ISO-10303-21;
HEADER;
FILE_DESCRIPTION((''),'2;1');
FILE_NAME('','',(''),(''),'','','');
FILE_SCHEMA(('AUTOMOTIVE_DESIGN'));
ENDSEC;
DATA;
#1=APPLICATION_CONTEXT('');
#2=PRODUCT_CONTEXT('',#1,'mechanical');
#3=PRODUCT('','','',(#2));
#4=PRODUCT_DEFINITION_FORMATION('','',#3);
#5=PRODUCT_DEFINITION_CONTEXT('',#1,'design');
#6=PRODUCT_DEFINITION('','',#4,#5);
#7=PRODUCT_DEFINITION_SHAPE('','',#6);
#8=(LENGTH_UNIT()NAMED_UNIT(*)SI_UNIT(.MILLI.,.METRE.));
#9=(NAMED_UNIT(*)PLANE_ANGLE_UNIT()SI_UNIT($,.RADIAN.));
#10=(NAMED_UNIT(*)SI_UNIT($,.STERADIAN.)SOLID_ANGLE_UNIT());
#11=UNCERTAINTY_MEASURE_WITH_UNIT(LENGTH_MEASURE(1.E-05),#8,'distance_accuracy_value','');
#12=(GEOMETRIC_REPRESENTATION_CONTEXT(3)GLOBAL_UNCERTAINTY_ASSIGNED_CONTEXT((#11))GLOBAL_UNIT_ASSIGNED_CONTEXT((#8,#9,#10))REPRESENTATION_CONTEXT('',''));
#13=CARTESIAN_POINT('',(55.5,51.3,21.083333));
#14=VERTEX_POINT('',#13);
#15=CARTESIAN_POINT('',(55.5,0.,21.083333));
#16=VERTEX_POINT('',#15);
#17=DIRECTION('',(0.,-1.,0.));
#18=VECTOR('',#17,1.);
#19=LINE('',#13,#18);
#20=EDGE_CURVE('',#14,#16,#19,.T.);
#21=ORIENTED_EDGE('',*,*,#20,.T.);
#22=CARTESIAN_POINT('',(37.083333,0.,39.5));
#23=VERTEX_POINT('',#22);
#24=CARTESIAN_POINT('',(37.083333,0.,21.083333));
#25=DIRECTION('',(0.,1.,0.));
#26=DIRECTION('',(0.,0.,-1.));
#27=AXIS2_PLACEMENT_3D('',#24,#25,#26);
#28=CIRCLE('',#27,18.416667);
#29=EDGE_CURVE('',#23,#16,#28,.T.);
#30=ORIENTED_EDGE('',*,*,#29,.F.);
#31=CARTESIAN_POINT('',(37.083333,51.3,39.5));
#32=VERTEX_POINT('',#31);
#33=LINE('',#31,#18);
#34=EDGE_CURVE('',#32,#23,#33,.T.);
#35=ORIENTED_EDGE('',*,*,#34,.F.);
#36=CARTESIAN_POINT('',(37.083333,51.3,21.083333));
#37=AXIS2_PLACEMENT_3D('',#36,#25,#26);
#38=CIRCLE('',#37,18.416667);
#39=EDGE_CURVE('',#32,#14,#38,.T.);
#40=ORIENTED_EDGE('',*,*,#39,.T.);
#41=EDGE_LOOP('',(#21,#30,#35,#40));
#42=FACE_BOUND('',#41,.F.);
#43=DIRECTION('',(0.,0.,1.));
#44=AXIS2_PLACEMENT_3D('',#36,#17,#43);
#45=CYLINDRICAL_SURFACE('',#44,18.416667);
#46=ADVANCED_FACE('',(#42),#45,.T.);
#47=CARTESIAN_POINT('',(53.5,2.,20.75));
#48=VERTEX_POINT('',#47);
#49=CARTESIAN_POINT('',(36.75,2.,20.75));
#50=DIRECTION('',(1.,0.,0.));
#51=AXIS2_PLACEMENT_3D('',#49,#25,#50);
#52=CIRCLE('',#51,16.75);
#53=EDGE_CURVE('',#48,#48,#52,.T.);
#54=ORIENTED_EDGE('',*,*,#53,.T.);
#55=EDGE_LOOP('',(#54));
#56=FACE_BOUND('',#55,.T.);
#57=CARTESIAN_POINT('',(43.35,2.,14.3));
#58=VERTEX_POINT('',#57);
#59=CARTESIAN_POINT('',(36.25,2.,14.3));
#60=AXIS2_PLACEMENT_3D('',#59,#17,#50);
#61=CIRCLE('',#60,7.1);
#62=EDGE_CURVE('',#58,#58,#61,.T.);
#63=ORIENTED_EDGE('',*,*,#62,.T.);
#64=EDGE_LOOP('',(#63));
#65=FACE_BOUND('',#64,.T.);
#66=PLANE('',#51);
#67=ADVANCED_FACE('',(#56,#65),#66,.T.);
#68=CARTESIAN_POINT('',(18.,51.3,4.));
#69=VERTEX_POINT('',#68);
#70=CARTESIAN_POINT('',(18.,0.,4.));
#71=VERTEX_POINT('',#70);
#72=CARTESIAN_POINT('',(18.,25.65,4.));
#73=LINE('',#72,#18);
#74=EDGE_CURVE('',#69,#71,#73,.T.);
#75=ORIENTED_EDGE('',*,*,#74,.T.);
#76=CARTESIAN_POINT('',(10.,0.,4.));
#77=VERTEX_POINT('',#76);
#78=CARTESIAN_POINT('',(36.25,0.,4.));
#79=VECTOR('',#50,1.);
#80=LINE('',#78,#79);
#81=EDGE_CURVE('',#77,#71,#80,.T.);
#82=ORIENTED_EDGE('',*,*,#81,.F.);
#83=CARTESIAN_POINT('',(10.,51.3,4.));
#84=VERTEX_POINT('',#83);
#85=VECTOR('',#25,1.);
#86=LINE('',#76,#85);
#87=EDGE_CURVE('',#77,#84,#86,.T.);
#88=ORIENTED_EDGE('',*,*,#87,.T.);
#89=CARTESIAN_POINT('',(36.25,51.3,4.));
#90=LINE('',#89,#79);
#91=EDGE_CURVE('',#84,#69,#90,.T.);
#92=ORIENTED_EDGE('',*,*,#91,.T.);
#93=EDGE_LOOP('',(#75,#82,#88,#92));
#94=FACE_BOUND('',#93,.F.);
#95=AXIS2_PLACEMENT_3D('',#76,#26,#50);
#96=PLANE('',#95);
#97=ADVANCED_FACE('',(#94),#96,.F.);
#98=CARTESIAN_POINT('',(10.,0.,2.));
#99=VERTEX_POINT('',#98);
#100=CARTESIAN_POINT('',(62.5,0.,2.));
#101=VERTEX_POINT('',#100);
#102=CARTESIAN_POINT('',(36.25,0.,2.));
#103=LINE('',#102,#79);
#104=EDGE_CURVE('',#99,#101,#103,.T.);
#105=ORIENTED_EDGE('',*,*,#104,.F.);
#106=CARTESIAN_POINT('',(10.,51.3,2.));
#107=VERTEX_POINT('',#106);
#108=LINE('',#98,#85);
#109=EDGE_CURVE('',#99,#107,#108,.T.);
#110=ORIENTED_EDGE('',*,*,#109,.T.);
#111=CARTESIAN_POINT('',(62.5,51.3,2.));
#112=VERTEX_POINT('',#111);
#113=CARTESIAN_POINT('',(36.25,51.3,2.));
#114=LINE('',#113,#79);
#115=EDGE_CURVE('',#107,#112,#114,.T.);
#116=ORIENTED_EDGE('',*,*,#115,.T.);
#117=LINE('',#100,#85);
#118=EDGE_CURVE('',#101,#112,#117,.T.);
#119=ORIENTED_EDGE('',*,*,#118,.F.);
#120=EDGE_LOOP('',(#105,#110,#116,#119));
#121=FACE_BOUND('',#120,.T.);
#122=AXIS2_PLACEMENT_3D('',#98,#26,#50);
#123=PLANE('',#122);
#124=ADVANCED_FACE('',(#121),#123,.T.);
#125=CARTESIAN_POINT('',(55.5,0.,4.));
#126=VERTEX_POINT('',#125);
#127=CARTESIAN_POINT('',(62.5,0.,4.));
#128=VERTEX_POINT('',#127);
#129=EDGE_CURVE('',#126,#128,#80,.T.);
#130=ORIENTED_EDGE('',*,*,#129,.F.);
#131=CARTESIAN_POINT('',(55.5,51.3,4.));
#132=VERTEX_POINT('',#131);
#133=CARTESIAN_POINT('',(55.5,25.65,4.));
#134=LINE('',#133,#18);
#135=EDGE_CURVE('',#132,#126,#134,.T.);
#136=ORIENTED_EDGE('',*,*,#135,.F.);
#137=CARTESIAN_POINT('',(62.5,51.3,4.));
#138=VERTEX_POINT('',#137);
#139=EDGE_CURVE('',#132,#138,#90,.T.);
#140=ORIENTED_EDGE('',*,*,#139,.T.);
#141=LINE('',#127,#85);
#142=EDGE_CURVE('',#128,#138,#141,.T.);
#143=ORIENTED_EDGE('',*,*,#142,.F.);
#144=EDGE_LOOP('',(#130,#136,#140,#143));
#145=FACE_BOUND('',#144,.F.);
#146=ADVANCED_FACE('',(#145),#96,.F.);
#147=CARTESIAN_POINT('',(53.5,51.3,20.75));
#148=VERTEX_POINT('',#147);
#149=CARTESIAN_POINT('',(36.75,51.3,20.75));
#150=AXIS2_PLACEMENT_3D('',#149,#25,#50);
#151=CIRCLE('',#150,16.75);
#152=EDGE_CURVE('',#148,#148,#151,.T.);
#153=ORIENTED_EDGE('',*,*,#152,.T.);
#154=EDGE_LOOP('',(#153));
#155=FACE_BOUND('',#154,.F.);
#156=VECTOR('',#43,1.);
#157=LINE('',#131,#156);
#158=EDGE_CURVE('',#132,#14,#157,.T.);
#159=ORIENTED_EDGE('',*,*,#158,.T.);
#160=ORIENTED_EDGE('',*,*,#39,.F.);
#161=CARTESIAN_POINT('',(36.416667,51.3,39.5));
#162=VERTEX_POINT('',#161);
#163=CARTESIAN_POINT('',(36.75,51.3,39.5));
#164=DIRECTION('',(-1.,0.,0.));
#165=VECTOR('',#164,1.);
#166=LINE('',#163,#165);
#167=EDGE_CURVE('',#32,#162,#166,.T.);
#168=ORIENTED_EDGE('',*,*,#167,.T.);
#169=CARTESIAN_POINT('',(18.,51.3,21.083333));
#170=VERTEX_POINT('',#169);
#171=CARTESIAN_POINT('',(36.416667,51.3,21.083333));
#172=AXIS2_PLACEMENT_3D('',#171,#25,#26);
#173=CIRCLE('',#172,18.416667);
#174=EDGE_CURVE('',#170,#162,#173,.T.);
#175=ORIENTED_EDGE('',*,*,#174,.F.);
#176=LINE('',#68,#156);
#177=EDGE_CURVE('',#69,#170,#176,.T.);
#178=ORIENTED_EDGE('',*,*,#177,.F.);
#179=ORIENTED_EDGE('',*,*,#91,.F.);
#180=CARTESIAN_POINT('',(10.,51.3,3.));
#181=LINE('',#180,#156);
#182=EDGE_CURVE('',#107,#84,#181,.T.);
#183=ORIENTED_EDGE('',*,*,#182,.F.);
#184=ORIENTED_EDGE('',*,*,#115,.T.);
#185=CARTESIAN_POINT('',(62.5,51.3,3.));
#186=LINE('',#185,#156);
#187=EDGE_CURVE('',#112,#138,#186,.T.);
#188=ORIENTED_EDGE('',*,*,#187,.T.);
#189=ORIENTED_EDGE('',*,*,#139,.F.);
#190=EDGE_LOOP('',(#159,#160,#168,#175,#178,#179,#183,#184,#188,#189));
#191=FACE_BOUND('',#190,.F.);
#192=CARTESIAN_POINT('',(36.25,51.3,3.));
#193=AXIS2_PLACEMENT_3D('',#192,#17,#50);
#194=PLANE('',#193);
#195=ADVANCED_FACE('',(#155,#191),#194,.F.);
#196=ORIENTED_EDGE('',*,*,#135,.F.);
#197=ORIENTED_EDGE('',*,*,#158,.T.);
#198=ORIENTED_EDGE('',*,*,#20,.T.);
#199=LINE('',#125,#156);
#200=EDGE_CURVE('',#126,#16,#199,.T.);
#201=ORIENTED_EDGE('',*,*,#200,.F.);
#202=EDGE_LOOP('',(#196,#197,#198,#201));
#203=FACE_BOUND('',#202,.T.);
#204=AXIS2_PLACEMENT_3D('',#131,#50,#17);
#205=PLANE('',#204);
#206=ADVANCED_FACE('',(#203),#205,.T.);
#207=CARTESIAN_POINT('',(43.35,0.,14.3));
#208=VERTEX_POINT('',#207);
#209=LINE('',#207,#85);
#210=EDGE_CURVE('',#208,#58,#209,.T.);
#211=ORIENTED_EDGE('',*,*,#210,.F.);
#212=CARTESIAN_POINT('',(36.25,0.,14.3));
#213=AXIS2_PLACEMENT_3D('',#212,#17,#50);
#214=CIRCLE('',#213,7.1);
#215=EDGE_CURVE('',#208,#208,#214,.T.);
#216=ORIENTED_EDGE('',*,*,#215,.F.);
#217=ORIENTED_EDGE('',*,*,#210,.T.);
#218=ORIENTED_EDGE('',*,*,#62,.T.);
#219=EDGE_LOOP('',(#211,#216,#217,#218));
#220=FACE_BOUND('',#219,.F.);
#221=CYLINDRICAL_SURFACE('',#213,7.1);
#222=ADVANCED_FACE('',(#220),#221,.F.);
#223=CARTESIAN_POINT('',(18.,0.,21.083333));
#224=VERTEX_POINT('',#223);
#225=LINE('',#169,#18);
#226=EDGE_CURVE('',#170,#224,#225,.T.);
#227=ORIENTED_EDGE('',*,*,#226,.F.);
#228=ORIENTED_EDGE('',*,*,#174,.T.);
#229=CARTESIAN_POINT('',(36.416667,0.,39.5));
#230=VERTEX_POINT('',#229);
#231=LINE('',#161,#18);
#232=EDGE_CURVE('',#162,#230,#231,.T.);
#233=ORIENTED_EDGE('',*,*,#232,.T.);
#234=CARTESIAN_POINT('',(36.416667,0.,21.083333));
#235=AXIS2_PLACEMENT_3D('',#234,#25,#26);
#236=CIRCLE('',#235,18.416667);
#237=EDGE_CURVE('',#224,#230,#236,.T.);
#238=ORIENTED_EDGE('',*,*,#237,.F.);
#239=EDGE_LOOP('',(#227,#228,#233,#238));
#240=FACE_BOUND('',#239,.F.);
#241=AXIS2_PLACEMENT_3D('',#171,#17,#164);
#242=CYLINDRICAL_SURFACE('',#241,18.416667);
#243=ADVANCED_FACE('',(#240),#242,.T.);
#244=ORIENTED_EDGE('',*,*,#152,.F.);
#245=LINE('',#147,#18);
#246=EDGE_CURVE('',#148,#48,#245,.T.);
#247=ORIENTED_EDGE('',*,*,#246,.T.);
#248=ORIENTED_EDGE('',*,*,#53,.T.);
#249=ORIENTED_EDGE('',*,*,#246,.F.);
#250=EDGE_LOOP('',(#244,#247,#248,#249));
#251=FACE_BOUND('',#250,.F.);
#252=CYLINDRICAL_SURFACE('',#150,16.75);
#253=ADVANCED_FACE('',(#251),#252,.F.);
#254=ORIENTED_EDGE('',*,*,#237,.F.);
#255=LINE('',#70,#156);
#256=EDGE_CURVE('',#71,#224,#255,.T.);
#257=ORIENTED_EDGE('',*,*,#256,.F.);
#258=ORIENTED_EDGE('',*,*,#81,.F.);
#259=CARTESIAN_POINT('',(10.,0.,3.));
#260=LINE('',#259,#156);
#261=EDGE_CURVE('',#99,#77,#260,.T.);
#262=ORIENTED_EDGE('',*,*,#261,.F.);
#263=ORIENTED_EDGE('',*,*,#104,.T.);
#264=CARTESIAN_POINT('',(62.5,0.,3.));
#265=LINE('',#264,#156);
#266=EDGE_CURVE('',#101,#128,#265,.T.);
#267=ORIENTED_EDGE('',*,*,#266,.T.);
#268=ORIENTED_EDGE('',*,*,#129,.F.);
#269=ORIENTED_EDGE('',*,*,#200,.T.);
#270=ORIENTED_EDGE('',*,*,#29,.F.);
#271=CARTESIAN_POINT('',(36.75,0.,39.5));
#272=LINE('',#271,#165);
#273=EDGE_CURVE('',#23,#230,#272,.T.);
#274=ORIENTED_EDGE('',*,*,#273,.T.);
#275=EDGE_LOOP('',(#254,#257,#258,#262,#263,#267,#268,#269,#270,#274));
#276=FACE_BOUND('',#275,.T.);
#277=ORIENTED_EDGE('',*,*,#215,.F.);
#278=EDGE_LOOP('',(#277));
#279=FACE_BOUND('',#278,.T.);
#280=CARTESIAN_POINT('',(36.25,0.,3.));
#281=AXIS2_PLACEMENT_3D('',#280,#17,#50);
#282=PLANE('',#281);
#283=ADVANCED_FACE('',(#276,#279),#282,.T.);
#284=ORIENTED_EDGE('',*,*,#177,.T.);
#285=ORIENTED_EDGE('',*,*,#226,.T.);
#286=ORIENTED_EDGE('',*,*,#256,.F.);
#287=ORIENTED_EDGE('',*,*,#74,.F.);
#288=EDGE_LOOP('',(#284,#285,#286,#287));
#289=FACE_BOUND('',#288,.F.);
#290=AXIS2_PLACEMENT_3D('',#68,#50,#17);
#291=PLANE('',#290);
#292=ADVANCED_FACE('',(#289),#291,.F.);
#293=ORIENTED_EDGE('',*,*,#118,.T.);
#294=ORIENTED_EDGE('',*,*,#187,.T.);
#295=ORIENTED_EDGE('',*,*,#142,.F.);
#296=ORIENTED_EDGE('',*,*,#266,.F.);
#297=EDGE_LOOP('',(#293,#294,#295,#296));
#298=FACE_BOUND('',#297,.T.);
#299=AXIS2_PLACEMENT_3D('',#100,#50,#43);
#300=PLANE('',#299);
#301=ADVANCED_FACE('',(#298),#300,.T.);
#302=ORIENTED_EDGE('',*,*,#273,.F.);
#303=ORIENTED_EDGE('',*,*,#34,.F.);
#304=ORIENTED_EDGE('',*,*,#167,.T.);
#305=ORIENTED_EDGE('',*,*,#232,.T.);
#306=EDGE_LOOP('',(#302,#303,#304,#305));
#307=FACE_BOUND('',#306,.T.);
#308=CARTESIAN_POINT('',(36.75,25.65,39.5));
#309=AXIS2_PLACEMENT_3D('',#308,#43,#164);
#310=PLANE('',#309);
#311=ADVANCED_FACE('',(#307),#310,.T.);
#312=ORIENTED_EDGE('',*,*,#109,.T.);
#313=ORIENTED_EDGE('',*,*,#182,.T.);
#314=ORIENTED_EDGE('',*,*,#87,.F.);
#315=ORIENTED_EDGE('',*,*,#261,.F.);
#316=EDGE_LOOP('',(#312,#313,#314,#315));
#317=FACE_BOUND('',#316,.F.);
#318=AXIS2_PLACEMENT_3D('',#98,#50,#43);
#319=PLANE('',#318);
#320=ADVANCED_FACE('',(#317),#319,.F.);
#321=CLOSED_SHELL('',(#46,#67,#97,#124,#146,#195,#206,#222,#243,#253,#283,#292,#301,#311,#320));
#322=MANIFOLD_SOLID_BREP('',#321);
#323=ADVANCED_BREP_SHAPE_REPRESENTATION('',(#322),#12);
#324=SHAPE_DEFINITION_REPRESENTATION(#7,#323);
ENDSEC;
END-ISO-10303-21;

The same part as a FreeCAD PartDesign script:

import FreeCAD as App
import Part
import Sketcher
Q = App.Units.Quantity


def edges_at(feature, points):
    """Names of the edges that pass closest to the given points."""
    edges = feature.Shape.Edges
    near = lambda p: min(range(len(edges)), key=lambda i: edges[i].distToShape(Part.Vertex(*p))[0])
    return sorted({f"Edge{near(p) + 1}" for p in points})


def add_polygon(sketch, points):
    """Adds a closed chain of lines whose ends are joined by coincident constraints."""
    first, n = sketch.GeometryCount, len(points)
    for a, b in zip(points, points[1:] + points[:1]):
        sketch.addGeometry(Part.LineSegment(App.Vector(*a, 0), App.Vector(*b, 0)), False)
    for i in range(n):
        sketch.addConstraint(Sketcher.Constraint("Coincident", first + i, 2, first + (i + 1) % n, 1))

doc = App.newDocument("Part")
params = doc.addObject("Spreadsheet::Sheet", "Params")
for row, (alias, value) in enumerate([
    ("sketch1_height", "2 mm"),
    ("sketch1_width", "52.5 mm"),
    ("pad1_length", "51.3 mm"),
    ("sketch2_width", "37.5 mm"),
    ("sketch2_height", "51.3 mm"),
    ("pad2_length", "35.5 mm"),
    ("fillet_radius", "18.416667 mm"),
    ("sketch3_diameter", "14.2 mm"),
    ("pocket1_length", "2 mm"),
    ("sketch4_diameter", "33.5 mm"),
    ("pocket2_length", "49.3 mm"),
], start=1):
    params.set(f"A{row}", alias)
    params.set(f"B{row}", "=" + value)
    params.setAlias(f"B{row}", alias)

body = doc.addObject("PartDesign::Body", "Body")

# Sketch on XZ plane
sketch1 = body.newObject("Sketcher::SketchObject", "Sketch")
sketch1.AttachmentSupport = (doc.getObject("XZ_Plane"), [""])
sketch1.MapMode = "FlatFace"
add_polygon(sketch1, [(10, 4), (10, 2), (62.5, 2), (62.5, 4)])  # lines 0-3
sketch1.addConstraint([
    Sketcher.Constraint("Vertical", 0),
    Sketcher.Constraint("Horizontal", 1),
    Sketcher.Constraint("Vertical", 2),
    Sketcher.Constraint("Horizontal", 3),
    Sketcher.Constraint("DistanceY", 0, 2, 0, 1, Q("2 mm")),
    Sketcher.Constraint("DistanceX", 1, 1, 1, 2, Q("52.5 mm")),
    Sketcher.Constraint("DistanceX", -1, 1, 0, 2, Q("10 mm")),
    Sketcher.Constraint("DistanceY", -1, 1, 0, 2, Q("2 mm")),
])
sketch1.setExpression("Constraints[8]", "Params.sketch1_height")
sketch1.setExpression("Constraints[9]", "Params.sketch1_width")
pad1 = body.newObject("PartDesign::Pad", "Pad")
pad1.Profile = sketch1
pad1.setExpression("Length", "Params.pad1_length")
pad1.Reversed = True

# Sketch on XY plane
sketch2 = body.newObject("Sketcher::SketchObject", "Sketch001")
sketch2.AttachmentSupport = (doc.getObject("XY_Plane"), [""])
sketch2.MapMode = "FlatFace"
sketch2.AttachmentOffset = App.Placement(App.Vector(0, 0, 4), App.Rotation())
add_polygon(sketch2, [(55.5, 0), (55.5, 51.3), (18, 51.3), (18, 0)])  # lines 0-3
sketch2.addConstraint([
    Sketcher.Constraint("Vertical", 0),
    Sketcher.Constraint("Horizontal", 1),
    Sketcher.Constraint("Vertical", 2),
    Sketcher.Constraint("Horizontal", 3),
    Sketcher.Constraint("PointOnObject", 2, 2, -1),
    Sketcher.Constraint("DistanceX", 1, 2, 1, 1, Q("37.5 mm")),
    Sketcher.Constraint("DistanceY", 0, 1, 0, 2, Q("51.3 mm")),
    Sketcher.Constraint("DistanceX", -1, 1, 1, 2, Q("18 mm")),
])
sketch2.setExpression("Constraints[9]", "Params.sketch2_width")
sketch2.setExpression("Constraints[10]", "Params.sketch2_height")
pad2 = body.newObject("PartDesign::Pad", "Pad001")
pad2.Profile = sketch2
pad2.setExpression("Length", "Params.pad2_length")
doc.recompute()

fillet = body.newObject("PartDesign::Fillet", "Fillet")
fillet.Base = (pad2, edges_at(pad2, [(18, 25.65, 39.5), (55.5, 25.65, 39.5)]))
fillet.setExpression("Radius", "Params.fillet_radius")

# Sketch on XZ plane
sketch3 = body.newObject("Sketcher::SketchObject", "Sketch002")
sketch3.AttachmentSupport = (doc.getObject("XZ_Plane"), [""])
sketch3.MapMode = "FlatFace"
sketch3.addGeometry(Part.Circle(App.Vector(36.25, 14.3, 0), App.Vector(0, 0, 1), 7.1), False)
sketch3.addConstraint([
    Sketcher.Constraint("Diameter", 0, Q("14.2 mm")),
    Sketcher.Constraint("DistanceY", -1, 1, 0, 3, Q("14.3 mm")),
    Sketcher.Constraint("DistanceX", -1, 1, 0, 3, Q("36.25 mm")),
])
sketch3.setExpression("Constraints[0]", "Params.sketch3_diameter")
pocket1 = body.newObject("PartDesign::Pocket", "Pocket")
pocket1.Profile = sketch3
pocket1.setExpression("Length", "Params.pocket1_length")

# Sketch on XZ plane
sketch4 = body.newObject("Sketcher::SketchObject", "Sketch003")
sketch4.AttachmentSupport = (doc.getObject("XZ_Plane"), [""])
sketch4.MapMode = "FlatFace"
sketch4.AttachmentOffset = App.Placement(App.Vector(0, 0, -51.3), App.Rotation())
sketch4.addGeometry(Part.Circle(App.Vector(36.75, 20.75, 0), App.Vector(0, 0, 1), 16.75), False)
sketch4.addConstraint([
    Sketcher.Constraint("Diameter", 0, Q("33.5 mm")),
    Sketcher.Constraint("DistanceX", -1, 1, 0, 3, Q("36.75 mm")),
    Sketcher.Constraint("DistanceY", -1, 1, 0, 3, Q("20.75 mm")),
])
sketch4.setExpression("Constraints[0]", "Params.sketch4_diameter")
pocket2 = body.newObject("PartDesign::Pocket", "Pocket001")
pocket2.Profile = sketch4
pocket2.setExpression("Length", "Params.pocket2_length")
pocket2.Reversed = True

doc.recompute()
